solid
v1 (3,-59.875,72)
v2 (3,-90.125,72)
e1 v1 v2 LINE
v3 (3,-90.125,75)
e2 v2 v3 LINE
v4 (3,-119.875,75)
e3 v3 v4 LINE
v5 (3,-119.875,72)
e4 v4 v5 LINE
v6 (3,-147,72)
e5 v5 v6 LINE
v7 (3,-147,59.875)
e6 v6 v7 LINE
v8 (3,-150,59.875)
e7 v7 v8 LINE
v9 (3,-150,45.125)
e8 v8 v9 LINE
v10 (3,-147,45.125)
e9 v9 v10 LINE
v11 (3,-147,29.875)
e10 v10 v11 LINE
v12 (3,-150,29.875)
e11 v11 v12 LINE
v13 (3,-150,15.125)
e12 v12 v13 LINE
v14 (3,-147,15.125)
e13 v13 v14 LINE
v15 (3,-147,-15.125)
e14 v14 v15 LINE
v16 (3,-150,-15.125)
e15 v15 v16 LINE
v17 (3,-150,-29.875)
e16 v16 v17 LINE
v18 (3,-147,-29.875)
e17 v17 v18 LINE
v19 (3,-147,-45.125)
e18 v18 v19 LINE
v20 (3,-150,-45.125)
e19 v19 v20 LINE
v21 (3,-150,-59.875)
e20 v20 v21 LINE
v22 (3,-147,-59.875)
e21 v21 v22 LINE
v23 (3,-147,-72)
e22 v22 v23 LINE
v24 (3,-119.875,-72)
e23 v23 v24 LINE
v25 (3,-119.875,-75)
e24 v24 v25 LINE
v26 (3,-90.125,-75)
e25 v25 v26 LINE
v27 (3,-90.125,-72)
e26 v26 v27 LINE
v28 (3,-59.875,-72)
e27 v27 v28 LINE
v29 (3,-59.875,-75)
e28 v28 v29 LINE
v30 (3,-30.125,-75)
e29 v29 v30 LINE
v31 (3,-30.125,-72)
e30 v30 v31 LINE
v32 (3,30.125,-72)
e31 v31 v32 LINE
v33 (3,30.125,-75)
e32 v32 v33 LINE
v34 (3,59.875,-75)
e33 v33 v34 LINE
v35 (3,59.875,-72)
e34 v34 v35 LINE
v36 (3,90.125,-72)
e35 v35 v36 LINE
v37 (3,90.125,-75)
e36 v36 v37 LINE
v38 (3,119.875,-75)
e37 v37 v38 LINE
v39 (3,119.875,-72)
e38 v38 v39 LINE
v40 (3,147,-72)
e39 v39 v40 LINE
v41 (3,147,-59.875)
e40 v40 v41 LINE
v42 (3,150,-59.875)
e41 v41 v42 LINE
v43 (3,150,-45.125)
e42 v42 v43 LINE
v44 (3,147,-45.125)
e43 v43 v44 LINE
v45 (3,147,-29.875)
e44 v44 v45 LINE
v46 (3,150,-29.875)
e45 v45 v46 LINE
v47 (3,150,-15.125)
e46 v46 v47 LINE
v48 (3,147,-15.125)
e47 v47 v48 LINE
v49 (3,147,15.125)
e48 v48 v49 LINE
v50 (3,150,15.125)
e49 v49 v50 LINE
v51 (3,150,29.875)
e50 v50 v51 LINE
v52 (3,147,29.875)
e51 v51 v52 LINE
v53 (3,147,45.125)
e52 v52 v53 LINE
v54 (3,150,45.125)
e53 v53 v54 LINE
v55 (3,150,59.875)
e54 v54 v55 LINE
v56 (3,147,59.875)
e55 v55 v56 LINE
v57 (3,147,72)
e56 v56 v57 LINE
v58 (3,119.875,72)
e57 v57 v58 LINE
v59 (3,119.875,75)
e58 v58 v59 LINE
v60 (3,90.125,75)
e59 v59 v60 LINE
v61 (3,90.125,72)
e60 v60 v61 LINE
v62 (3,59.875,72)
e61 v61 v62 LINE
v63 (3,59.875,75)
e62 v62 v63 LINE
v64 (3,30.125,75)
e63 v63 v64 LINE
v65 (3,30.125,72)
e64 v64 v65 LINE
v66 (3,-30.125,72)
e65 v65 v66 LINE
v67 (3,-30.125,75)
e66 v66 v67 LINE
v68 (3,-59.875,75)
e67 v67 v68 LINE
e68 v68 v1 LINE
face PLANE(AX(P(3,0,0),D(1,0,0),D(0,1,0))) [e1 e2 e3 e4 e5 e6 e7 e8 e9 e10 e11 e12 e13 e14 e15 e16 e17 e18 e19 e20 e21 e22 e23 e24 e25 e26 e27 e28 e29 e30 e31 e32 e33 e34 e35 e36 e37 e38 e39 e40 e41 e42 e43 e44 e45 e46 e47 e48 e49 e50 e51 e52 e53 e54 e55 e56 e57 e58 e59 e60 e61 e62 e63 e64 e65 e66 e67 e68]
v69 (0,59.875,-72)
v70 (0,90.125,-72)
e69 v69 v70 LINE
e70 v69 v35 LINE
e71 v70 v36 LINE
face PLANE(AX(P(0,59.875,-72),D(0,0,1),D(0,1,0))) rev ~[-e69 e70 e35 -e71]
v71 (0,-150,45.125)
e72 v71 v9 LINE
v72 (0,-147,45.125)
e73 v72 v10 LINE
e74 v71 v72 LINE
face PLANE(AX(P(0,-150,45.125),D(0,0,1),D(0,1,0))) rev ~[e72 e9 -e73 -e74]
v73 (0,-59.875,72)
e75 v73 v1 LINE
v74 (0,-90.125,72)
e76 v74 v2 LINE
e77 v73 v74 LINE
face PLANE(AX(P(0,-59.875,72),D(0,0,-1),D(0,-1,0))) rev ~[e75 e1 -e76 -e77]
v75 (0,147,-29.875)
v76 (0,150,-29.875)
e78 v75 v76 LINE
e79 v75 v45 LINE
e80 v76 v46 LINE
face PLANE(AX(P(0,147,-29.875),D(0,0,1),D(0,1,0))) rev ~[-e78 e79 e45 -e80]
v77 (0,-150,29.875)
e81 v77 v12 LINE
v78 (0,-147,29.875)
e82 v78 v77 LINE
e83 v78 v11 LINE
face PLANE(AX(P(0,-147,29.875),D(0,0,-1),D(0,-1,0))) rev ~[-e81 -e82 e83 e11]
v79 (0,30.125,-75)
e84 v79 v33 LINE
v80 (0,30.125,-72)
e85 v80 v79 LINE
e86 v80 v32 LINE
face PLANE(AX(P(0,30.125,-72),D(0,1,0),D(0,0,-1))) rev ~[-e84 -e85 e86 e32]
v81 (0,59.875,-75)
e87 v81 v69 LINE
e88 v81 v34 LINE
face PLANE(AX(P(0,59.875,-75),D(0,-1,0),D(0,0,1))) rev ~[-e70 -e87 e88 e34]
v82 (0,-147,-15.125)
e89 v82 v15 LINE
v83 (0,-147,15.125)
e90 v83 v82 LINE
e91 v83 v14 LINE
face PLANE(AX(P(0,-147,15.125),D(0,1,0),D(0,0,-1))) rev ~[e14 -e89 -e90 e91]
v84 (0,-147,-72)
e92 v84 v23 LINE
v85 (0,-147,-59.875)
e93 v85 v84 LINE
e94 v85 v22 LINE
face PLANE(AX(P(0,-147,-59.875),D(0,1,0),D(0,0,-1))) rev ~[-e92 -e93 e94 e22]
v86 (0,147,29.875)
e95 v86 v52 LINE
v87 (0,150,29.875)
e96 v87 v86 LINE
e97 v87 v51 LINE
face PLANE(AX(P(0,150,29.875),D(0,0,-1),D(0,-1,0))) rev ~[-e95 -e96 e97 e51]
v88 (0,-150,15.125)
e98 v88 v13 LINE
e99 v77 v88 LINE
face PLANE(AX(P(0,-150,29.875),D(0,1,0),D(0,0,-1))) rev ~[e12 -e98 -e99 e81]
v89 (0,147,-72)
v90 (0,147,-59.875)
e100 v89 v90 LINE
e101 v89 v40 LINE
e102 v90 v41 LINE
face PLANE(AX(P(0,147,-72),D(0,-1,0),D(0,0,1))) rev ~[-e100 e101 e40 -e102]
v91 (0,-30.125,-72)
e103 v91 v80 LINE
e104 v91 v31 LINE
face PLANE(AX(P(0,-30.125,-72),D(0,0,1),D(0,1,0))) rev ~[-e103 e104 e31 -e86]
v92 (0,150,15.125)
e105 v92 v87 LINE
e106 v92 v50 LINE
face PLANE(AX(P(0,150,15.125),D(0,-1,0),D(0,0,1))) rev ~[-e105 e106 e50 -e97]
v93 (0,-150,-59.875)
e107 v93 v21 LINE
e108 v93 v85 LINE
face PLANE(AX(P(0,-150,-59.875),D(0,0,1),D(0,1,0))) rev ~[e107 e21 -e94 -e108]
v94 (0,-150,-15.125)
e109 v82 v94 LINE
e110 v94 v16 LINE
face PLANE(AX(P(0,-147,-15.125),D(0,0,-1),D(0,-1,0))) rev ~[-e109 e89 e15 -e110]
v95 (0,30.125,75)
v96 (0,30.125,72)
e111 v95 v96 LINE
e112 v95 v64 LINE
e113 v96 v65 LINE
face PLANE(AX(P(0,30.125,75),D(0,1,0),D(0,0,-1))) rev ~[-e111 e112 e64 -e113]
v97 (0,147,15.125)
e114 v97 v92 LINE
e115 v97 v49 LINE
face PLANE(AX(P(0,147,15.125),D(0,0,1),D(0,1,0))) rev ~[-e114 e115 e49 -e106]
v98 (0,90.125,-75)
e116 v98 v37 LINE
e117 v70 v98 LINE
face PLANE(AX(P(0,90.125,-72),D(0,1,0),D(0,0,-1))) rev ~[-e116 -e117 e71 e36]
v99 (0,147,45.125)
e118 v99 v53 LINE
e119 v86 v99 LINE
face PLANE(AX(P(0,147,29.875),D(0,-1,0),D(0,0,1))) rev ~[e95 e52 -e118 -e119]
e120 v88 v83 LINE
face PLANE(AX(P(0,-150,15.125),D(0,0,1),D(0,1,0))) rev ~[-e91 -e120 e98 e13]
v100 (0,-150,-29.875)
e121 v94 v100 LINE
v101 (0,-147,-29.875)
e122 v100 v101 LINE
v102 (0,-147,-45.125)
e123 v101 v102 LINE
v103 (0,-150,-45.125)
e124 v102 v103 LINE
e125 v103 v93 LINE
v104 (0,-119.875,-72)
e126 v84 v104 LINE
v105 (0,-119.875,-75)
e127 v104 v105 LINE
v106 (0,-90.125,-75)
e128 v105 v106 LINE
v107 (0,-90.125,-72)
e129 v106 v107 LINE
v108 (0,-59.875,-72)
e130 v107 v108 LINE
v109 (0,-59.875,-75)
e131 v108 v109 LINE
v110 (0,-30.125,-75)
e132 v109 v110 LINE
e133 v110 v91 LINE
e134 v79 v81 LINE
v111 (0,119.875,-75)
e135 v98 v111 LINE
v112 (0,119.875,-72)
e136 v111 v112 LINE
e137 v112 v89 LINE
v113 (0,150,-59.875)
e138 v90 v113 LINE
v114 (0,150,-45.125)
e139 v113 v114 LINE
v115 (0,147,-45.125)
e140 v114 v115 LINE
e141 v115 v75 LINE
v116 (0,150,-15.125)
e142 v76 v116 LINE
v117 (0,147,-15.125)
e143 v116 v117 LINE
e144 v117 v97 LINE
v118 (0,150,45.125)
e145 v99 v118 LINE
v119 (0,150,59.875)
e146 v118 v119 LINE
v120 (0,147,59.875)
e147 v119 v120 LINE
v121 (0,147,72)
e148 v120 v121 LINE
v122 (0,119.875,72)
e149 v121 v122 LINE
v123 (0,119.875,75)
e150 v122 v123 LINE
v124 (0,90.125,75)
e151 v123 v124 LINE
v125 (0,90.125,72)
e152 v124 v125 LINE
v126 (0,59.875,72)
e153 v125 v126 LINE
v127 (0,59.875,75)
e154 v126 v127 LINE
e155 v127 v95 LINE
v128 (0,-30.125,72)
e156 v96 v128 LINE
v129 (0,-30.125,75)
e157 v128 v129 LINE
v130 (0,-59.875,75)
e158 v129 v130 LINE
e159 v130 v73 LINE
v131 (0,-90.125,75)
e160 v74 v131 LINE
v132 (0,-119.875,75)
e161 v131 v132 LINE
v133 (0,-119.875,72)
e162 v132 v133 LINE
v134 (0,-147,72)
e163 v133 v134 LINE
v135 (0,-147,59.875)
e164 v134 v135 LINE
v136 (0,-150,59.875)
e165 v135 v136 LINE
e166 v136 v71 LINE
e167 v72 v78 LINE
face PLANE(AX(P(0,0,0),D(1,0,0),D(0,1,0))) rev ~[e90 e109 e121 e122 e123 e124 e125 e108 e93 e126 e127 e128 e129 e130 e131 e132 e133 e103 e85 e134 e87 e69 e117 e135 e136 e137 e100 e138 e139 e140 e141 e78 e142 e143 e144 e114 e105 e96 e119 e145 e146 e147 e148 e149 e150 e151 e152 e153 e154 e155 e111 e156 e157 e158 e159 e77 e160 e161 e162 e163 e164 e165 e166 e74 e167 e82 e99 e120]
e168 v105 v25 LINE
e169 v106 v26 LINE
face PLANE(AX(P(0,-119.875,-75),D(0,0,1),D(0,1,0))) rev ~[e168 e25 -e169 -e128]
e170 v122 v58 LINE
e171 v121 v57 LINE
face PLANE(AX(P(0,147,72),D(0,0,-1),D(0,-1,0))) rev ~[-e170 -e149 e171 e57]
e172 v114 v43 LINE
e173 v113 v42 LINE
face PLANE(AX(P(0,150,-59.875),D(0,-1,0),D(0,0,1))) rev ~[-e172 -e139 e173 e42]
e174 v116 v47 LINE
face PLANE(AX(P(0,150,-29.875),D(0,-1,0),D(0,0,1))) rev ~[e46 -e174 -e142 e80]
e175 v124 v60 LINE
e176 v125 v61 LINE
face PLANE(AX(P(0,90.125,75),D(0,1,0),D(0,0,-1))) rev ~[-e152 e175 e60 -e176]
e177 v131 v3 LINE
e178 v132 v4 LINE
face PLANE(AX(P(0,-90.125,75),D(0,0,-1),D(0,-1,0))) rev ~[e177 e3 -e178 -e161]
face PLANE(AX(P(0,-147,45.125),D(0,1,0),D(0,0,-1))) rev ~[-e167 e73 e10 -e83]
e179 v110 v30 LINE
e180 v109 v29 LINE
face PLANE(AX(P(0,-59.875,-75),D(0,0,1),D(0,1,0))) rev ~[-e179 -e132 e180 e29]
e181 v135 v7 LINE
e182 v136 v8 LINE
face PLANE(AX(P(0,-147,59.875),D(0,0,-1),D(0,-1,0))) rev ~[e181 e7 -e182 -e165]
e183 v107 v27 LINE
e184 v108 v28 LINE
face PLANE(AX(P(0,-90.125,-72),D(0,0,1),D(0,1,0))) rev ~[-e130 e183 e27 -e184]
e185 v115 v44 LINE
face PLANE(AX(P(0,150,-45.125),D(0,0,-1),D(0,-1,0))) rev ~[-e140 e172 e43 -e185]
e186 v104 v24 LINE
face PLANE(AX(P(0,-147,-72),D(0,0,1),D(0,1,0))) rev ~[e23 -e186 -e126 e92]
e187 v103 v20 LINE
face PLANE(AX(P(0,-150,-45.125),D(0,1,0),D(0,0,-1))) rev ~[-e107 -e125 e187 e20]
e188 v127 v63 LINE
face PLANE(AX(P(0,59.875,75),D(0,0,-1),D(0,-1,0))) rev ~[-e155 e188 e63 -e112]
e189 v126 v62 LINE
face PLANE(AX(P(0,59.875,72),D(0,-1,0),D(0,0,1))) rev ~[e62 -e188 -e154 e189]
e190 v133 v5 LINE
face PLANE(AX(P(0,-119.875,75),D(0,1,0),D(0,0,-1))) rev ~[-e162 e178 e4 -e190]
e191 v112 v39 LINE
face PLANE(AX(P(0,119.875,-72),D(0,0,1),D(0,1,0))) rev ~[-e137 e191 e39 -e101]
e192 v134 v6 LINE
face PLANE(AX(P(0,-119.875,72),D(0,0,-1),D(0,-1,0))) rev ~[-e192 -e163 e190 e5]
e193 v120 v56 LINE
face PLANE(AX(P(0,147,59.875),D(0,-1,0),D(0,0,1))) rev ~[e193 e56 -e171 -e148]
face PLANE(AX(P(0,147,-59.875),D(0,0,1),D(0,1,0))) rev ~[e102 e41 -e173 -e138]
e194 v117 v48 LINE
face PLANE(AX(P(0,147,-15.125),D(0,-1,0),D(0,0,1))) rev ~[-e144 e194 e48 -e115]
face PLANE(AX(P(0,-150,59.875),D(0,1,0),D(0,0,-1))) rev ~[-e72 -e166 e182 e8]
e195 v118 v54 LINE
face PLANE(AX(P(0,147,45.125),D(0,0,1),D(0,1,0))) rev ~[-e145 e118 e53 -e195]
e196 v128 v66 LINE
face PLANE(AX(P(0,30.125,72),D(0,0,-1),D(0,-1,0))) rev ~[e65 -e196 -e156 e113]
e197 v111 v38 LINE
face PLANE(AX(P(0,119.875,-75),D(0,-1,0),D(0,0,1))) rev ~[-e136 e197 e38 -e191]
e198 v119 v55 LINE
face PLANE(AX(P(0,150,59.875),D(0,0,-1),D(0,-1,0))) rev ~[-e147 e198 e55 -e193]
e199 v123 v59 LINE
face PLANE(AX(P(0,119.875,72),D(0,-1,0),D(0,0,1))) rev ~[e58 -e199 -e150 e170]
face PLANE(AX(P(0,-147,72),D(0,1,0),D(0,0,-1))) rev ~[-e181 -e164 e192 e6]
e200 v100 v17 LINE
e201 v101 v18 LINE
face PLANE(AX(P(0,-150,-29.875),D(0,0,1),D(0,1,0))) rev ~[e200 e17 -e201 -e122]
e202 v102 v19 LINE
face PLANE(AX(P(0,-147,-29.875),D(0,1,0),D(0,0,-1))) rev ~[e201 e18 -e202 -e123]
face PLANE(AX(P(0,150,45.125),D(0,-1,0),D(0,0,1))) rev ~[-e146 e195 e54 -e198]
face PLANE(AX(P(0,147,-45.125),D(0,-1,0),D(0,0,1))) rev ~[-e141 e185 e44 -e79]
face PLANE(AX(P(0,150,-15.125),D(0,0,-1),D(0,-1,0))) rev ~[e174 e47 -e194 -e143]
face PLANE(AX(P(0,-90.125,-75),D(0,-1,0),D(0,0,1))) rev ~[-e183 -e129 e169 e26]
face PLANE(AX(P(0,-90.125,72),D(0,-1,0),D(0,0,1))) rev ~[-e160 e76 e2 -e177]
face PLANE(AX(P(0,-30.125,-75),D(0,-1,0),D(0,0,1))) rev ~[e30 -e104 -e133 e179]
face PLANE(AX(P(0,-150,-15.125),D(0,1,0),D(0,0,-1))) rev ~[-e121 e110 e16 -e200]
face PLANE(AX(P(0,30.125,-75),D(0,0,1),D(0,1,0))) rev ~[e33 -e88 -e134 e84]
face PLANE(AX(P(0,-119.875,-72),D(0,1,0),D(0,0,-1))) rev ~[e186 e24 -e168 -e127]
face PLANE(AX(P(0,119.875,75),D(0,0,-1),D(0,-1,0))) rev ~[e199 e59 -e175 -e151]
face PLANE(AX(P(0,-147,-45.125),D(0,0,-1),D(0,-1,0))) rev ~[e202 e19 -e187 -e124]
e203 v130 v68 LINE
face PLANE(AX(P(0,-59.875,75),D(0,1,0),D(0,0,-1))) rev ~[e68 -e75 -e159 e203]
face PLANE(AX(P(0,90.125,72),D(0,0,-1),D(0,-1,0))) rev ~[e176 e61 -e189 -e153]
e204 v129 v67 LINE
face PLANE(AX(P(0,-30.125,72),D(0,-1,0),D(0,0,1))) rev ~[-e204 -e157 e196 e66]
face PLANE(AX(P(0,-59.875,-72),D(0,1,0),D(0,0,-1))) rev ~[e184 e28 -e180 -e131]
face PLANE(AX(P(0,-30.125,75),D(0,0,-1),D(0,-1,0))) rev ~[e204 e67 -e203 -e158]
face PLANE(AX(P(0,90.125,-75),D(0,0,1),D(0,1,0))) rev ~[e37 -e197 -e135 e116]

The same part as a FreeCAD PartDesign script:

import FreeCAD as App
import Part
import Sketcher

V = App.Vector


def add_polygon(sketch, points):
    """Adds a closed chain of lines whose ends are joined by coincident constraints."""
    first, n = sketch.GeometryCount, len(points)
    for a, b in zip(points, points[1:] + points[:1]):
        sketch.addGeometry(Part.LineSegment(App.Vector(*a, 0), App.Vector(*b, 0)), False)
    for i in range(n):
        sketch.addConstraint(Sketcher.Constraint("Coincident", first + i, 2, first + (i + 1) % n, 1))

doc = App.newDocument("Part")
body = doc.addObject("PartDesign::Body", "Body")

# Sketch on YZ plane
sketch1 = body.newObject("Sketcher::SketchObject", "Sketch")
sketch1.AttachmentSupport = (doc.getObject("YZ_Plane"), [""])
sketch1.MapMode = "FlatFace"
add_polygon(sketch1, [(-119.9, -72), (-119.9, -75), (-90.1, -75), (-90.1, -72), (-59.9, -72), (-59.9, -75), (-30.1, -75), (-30.1, -72), (30.1, -72), (30.1, -75), (59.9, -75), (59.9, -72), (90.1, -72), (90.1, -75), (119.9, -75), (119.9, -72), (147, -72), (147, -59.9), (150, -59.9), (150, -45.1), (147, -45.1), (147, -29.9), (150, -29.9), (150, -15.1), (147, -15.1), (147, 15.1), (150, 15.1), (150, 29.9), (147, 29.9), (147, 45.1), (150, 45.1), (150, 59.9), (147, 59.9), (147, 72), (119.9, 72), (119.9, 75), (90.1, 75), (90.1, 72), (59.9, 72), (59.9, 75), (30.1, 75), (30.1, 72), (-30.1, 72), (-30.1, 75), (-59.9, 75), (-59.9, 72), (-90.1, 72), (-90.1, 75), (-119.9, 75), (-119.9, 72), (-147, 72), (-147, 59.9), (-150, 59.9), (-150, 45.1), (-147, 45.1), (-147, 29.9), (-150, 29.9), (-150, 15.1), (-147, 15.1), (-147, -15.1), (-150, -15.1), (-150, -29.9), (-147, -29.9), (-147, -45.1), (-150, -45.1), (-150, -59.9), (-147, -59.9), (-147, -72)])  # lines 0-67
sketch1.addConstraint([
    Sketcher.Constraint("Vertical", 0),
    Sketcher.Constraint("Horizontal", 1),
    Sketcher.Constraint("Vertical", 2),
    Sketcher.Constraint("Horizontal", 3),
    Sketcher.Constraint("Vertical", 4),
    Sketcher.Constraint("Horizontal", 5),
    Sketcher.Constraint("Vertical", 6),
    Sketcher.Constraint("Horizontal", 7),
    Sketcher.Constraint("Vertical", 8),
    Sketcher.Constraint("Horizontal", 9),
    Sketcher.Constraint("Vertical", 10),
    Sketcher.Constraint("Horizontal", 11),
    Sketcher.Constraint("Vertical", 12),
    Sketcher.Constraint("Horizontal", 13),
    Sketcher.Constraint("Vertical", 14),
    Sketcher.Constraint("Horizontal", 15),
    Sketcher.Constraint("Vertical", 16),
    Sketcher.Constraint("Horizontal", 17),
    Sketcher.Constraint("Vertical", 18),
    Sketcher.Constraint("Horizontal", 19),
    Sketcher.Constraint("Vertical", 20),
    Sketcher.Constraint("Horizontal", 21),
    Sketcher.Constraint("Vertical", 22),
    Sketcher.Constraint("Horizontal", 23),
    Sketcher.Constraint("Vertical", 24),
    Sketcher.Constraint("Horizontal", 25),
    Sketcher.Constraint("Vertical", 26),
    Sketcher.Constraint("Horizontal", 27),
    Sketcher.Constraint("Vertical", 28),
    Sketcher.Constraint("Horizontal", 29),
    Sketcher.Constraint("Vertical", 30),
    Sketcher.Constraint("Horizontal", 31),
    Sketcher.Constraint("Vertical", 32),
    Sketcher.Constraint("Horizontal", 33),
    Sketcher.Constraint("Vertical", 34),
    Sketcher.Constraint("Horizontal", 35),
    Sketcher.Constraint("Vertical", 36),
    Sketcher.Constraint("Horizontal", 37),
    Sketcher.Constraint("Vertical", 38),
    Sketcher.Constraint("Horizontal", 39),
    Sketcher.Constraint("Vertical", 40),
    Sketcher.Constraint("Horizontal", 41),
    Sketcher.Constraint("Vertical", 42),
    Sketcher.Constraint("Horizontal", 43),
    Sketcher.Constraint("Vertical", 44),
    Sketcher.Constraint("Horizontal", 45),
    Sketcher.Constraint("Vertical", 46),
    Sketcher.Constraint("Horizontal", 47),
    Sketcher.Constraint("Vertical", 48),
    Sketcher.Constraint("Horizontal", 49),
    Sketcher.Constraint("Vertical", 50),
    Sketcher.Constraint("Horizontal", 51),
    Sketcher.Constraint("Vertical", 52),
    Sketcher.Constraint("Horizontal", 53),
    Sketcher.Constraint("Vertical", 54),
    Sketcher.Constraint("Horizontal", 55),
    Sketcher.Constraint("Vertical", 56),
    Sketcher.Constraint("Horizontal", 57),
    Sketcher.Constraint("Vertical", 58),
    Sketcher.Constraint("Horizontal", 59),
    Sketcher.Constraint("Vertical", 60),
    Sketcher.Constraint("Horizontal", 61),
    Sketcher.Constraint("Vertical", 62),
    Sketcher.Constraint("Horizontal", 63),
    Sketcher.Constraint("Vertical", 64),
    Sketcher.Constraint("Horizontal", 65),
    Sketcher.Constraint("Vertical", 66),
    Sketcher.Constraint("Horizontal", 67),
    Sketcher.Constraint("Symmetric", 0, 2, 34, 2, -1, 1),
    Sketcher.Constraint("Symmetric", 2, 2, 36, 2, -1, 1),
    Sketcher.Constraint("Symmetric", 4, 2, 38, 2, -1, 1),
    Sketcher.Constraint("Symmetric", 6, 2, 40, 2, -1, 1),
    Sketcher.Constraint("Symmetric", 8, 2, 42, 2, -1, 1),
    Sketcher.Constraint("Symmetric", 10, 2, 44, 2, -1, 1),
    Sketcher.Constraint("Symmetric", 12, 2, 46, 2, -1, 1),
    Sketcher.Constraint("Symmetric", 14, 2, 48, 2, -1, 1),
    Sketcher.Constraint("Symmetric", 16, 2, 50, 2, -1, 1),
    Sketcher.Constraint("Symmetric", 18, 2, 52, 2, -1, 1),
    Sketcher.Constraint("Symmetric", 20, 2, 54, 2, -1, 1),
    Sketcher.Constraint("Symmetric", 22, 2, 56, 2, -1, 1),
    Sketcher.Constraint("Symmetric", 24, 2, 58, 2, -1, 1),
    Sketcher.Constraint("Symmetric", 26, 2, 60, 2, -1, 1),
    Sketcher.Constraint("Symmetric", 28, 2, 62, 2, -1, 1),
    Sketcher.Constraint("Symmetric", 30, 2, 64, 2, -1, 1),
    Sketcher.Constraint("Symmetric", 32, 2, 66, 2, -1, 1),
    Sketcher.Constraint("Symmetric", 5, 2, 8, 2, -2),
    Sketcher.Constraint("Symmetric", 3, 2, 10, 2, -2),
    Sketcher.Constraint("Symmetric", 1, 2, 12, 2, -2),
    Sketcher.Constraint("Symmetric", 33, 2, 48, 2, -2),
    Sketcher.Constraint("Symmetric", 31, 2, 50, 2, -2),
    Sketcher.Constraint("Symmetric", 29, 2, 52, 2, -2),
    Sketcher.Constraint("Symmetric", 27, 2, 54, 2, -2),
    Sketcher.Constraint("Symmetric", 25, 2, 56, 2, -2),
    Sketcher.Constraint("Horizontal", 1, 2, 4, 2),
    Sketcher.Constraint("Horizontal", 3, 2, 6, 2),
    Sketcher.Constraint("Horizontal", 11, 2, 14, 2),
    Sketcher.Constraint("Vertical", 16, 2, 19, 2),
    Sketcher.Constraint("Vertical", 18, 2, 21, 2),
    Sketcher.Constraint("Vertical", 20, 2, 23, 2),
    Sketcher.Constraint("Equal", 1, 5),
    Sketcher.Constraint("Equal", 65, 0),
    Sketcher.Constraint("Equal", 18, 22),
    Sketcher.Constraint("Equal", 45, 24),
    Sketcher.Constraint("DistanceX", 17, 1, 17, 2, 3.0),
    Sketcher.Constraint("DistanceY", 0, 2, -1, 1, 75.0),
    Sketcher.Constraint("DistanceX", -1, 1, 15, 2, 147.0),
    Sketcher.Constraint("DistanceX", 1, 1, 1, 2, 29.75),
    Sketcher.Constraint("DistanceX", 3, 1, 3, 2, 30.25),
    Sketcher.Constraint("DistanceX", 7, 1, 7, 2, 60.25),
    Sketcher.Constraint("DistanceY", 18, 1, 18, 2, 14.75),
    Sketcher.Constraint("DistanceY", 20, 1, 20, 2, 15.25),
])
pad1 = body.newObject("PartDesign::Pad", "Pad")
pad1.Profile = sketch1
pad1.Length = 3

doc.recompute()
